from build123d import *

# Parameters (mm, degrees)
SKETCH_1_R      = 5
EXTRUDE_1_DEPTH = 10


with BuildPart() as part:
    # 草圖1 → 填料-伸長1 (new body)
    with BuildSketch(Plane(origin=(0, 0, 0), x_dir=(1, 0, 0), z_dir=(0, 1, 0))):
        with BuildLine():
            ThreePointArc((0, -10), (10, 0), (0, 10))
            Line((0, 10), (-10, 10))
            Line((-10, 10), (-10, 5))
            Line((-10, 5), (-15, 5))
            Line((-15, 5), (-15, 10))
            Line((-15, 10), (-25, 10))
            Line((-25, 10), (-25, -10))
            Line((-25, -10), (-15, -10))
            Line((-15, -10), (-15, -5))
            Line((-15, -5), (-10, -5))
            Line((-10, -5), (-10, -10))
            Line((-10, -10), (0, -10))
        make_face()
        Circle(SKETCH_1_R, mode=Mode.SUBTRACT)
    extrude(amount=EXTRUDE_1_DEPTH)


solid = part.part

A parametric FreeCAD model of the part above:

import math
import FreeCAD as App
import Part
import Sketcher
from FreeCAD import Vector
Q = App.Units.Quantity

doc = App.newDocument("Part")
params = doc.addObject("Spreadsheet::Sheet", "Params")
for row, (alias, value) in enumerate([
    ("sketch1_diameter", "10 mm"),
    ("sketch1_radius", "10 mm"),
    ("sketch1_width", "10 mm"),
    ("sketch1_width2", "5 mm"),
    ("pad1_length", "10 mm"),
], start=1):
    params.set(f"A{row}", alias)
    params.set(f"B{row}", "=" + value)
    params.setAlias(f"B{row}", alias)

body = doc.addObject("PartDesign::Body", "Body")

sketch1 = body.newObject("Sketcher::SketchObject", "Sketch")
sketch1.AttachmentSupport = (doc.getObject("XZ_Plane"), [""])
sketch1.MapMode = "FlatFace"
sketch1.addGeometry([
    Part.ArcOfCircle(Part.Circle(Vector(0, 0, 0), Vector(0, 0, 1), 10), math.radians(-90), math.radians(90)),
    Part.LineSegment(Vector(0, -10, 0), Vector(-10, -10, 0)),
    Part.LineSegment(Vector(-10, -10, 0), Vector(-10, -5, 0)),
    Part.LineSegment(Vector(-10, -5, 0), Vector(-15, -5, 0)),
    Part.LineSegment(Vector(-15, -5, 0), Vector(-15, -10, 0)),
    Part.LineSegment(Vector(-15, -10, 0), Vector(-25, -10, 0)),
    Part.LineSegment(Vector(-25, -10, 0), Vector(-25, 10, 0)),
    Part.LineSegment(Vector(-25, 10, 0), Vector(-15, 10, 0)),
    Part.LineSegment(Vector(-15, 10, 0), Vector(-15, 5, 0)),
    Part.LineSegment(Vector(-15, 5, 0), Vector(-10, 5, 0)),
    Part.LineSegment(Vector(-10, 5, 0), Vector(-10, 10, 0)),
    Part.LineSegment(Vector(-10, 10, 0), Vector(0, 10, 0)),
    Part.Circle(Vector(0, 0, 0), Vector(0, 0, 1), 5),
], False)
sketch1.addConstraint([
    Sketcher.Constraint("Tangent", 0, 1, 1, 1),
    Sketcher.Constraint("Coincident", 1, 2, 2, 1),
    Sketcher.Constraint("Coincident", 2, 2, 3, 1),
    Sketcher.Constraint("Coincident", 3, 2, 4, 1),
    Sketcher.Constraint("Coincident", 4, 2, 5, 1),
    Sketcher.Constraint("Coincident", 5, 2, 6, 1),
    Sketcher.Constraint("Coincident", 6, 2, 7, 1),
    Sketcher.Constraint("Coincident", 7, 2, 8, 1),
    Sketcher.Constraint("Coincident", 8, 2, 9, 1),
    Sketcher.Constraint("Coincident", 9, 2, 10, 1),
    Sketcher.Constraint("Coincident", 10, 2, 11, 1),
    Sketcher.Constraint("Tangent", 11, 2, 0, 2),
    Sketcher.Constraint("Horizontal", 1),
    Sketcher.Constraint("Vertical", 2),
    Sketcher.Constraint("Horizontal", 3),
    Sketcher.Constraint("Vertical", 4),
    Sketcher.Constraint("Horizontal", 5),
    Sketcher.Constraint("Vertical", 6),
    Sketcher.Constraint("Horizontal", 7),
    Sketcher.Constraint("Vertical", 8),
    Sketcher.Constraint("Horizontal", 9),
    Sketcher.Constraint("Vertical", 10),
    Sketcher.Constraint("Horizontal", 11),
    Sketcher.Constraint("Coincident", 0, 3, -1, 1),
    Sketcher.Constraint("Coincident", 12, 3, -1, 1),
    Sketcher.Constraint("Symmetric", 4, 2, 7, 2, -1),
    Sketcher.Constraint("Symmetric", 2, 2, 9, 2, -1),
    Sketcher.Constraint("Horizontal", 1, 2, 4, 2),
    Sketcher.Constraint("Equal", 1, 5),
    Sketcher.Constraint("Equal", 9, 2),
    Sketcher.Constraint("Diameter", 12, Q("10 mm")),
    Sketcher.Constraint("Radius", 0, Q("10 mm")),
    Sketcher.Constraint("DistanceX", 1, 2, 1, 1, Q("10 mm")),
    Sketcher.Constraint("DistanceX", 3, 2, 3, 1, Q("5 mm")),
])
sketch1.setExpression("Constraints[30]", "Params.sketch1_diameter")
sketch1.setExpression("Constraints[31]", "Params.sketch1_radius")
sketch1.setExpression("Constraints[32]", "Params.sketch1_width")
sketch1.setExpression("Constraints[33]", "Params.sketch1_width2")
pad1 = body.newObject("PartDesign::Pad", "Pad")
pad1.Profile = sketch1
pad1.setExpression("Length", "Params.pad1_length")
pad1.Reversed = True

doc.recompute()
